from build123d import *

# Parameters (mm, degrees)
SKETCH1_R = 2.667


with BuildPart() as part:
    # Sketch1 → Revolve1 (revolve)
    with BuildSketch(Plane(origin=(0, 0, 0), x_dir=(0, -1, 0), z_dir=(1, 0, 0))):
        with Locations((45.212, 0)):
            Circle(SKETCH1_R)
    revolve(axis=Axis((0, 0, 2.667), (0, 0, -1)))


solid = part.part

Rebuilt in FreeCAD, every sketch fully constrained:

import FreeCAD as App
import Part
import Sketcher
from FreeCAD import Vector
Q = App.Units.Quantity

doc = App.newDocument("Part")
body = doc.addObject("PartDesign::Body", "Body")

sketch1 = body.newObject("Sketcher::SketchObject", "Sketch")
sketch1.AttachmentSupport = (doc.getObject("YZ_Plane"), [""])
sketch1.MapMode = "FlatFace"
sketch1.addGeometry(Part.Circle(Vector(-45.2, 0, 0), Vector(0, 0, 1), 2.7), False)
sketch1.addConstraint([
    Sketcher.Constraint("PointOnObject", 0, 3, -1),
    Sketcher.Constraint("Diameter", 0, Q("0.21 in")),
    Sketcher.Constraint("DistanceX", 0, 3, -1, 1, Q("1.78 in")),
])
revolution = body.newObject("PartDesign::Revolution", "Revolution")
revolution.Profile = sketch1
revolution.ReferenceAxis = (sketch1, ["V_Axis"])
revolution.Angle = 360

doc.recompute()
